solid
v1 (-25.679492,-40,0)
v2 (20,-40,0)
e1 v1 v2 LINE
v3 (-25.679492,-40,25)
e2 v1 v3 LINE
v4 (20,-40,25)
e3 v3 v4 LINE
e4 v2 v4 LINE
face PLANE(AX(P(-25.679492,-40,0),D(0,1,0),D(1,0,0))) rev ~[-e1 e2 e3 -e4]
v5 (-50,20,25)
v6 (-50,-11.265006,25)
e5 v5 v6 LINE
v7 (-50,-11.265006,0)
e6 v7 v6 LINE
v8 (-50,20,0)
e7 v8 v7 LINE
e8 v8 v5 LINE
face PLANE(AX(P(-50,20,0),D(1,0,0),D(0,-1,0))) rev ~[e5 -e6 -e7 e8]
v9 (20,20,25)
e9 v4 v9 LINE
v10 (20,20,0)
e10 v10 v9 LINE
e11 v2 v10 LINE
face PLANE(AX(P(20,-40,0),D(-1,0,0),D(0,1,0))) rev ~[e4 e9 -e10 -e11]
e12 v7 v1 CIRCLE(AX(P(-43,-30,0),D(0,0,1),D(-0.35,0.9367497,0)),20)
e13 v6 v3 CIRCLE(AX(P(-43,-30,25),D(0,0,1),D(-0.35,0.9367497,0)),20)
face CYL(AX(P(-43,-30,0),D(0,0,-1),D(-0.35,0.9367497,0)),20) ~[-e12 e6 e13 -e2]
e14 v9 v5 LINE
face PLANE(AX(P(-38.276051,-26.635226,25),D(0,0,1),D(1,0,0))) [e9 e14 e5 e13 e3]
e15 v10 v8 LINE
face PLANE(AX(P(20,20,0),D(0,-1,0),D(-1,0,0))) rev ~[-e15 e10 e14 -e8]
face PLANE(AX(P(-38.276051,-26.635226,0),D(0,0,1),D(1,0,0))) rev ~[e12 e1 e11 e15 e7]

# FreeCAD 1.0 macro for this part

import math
import FreeCAD as App
import Part
import Sketcher

doc = App.newDocument("Part")
body = doc.addObject("PartDesign::Body", "Body")

# Sketch on XY plane
sketch1 = body.newObject("Sketcher::SketchObject", "Sketch")
sketch1.AttachmentSupport = (doc.getObject("XY_Plane"), [""])
sketch1.MapMode = "FlatFace"
sketch1.addGeometry([
    Part.ArcOfCircle(Part.Circle(App.Vector(-43, -30, 0), App.Vector(0, 0, 1), 20), math.radians(110.487315), math.radians(330)),  # 0
    Part.LineSegment(App.Vector(-25.679492, -40, 0), App.Vector(20, -40, 0)),  # 1
    Part.LineSegment(App.Vector(20, -40, 0), App.Vector(20, 20, 0)),  # 2
    Part.LineSegment(App.Vector(20, 20, 0), App.Vector(-50, 20, 0)),  # 3
    Part.LineSegment(App.Vector(-50, 20, 0), App.Vector(-50, -11.265006, 0)),  # 4
], False)
sketch1.addConstraint([
    Sketcher.Constraint("Coincident", 0, 2, 1, 1),
    Sketcher.Constraint("Coincident", 1, 2, 2, 1),
    Sketcher.Constraint("Coincident", 2, 2, 3, 1),
    Sketcher.Constraint("Coincident", 3, 2, 4, 1),
    Sketcher.Constraint("Coincident", 4, 2, 0, 1),
    Sketcher.Constraint("Horizontal", 1),
    Sketcher.Constraint("Vertical", 2),
    Sketcher.Constraint("Horizontal", 3),
    Sketcher.Constraint("Vertical", 4),
    Sketcher.Constraint("Radius", 0, 20.0),
    Sketcher.Constraint("DistanceX", 3, 2, 3, 1, 70.0),
    Sketcher.Constraint("DistanceY", 2, 1, 2, 2, 60.0),
    Sketcher.Constraint("DistanceX", 0, 3, -1, 1, 43.0),
    Sketcher.Constraint("DistanceY", 0, 3, -1, 1, 30.0),
    Sketcher.Constraint("DistanceY", 0, 2, -1, 1, 40.0),
    Sketcher.Constraint("DistanceX", -1, 1, 1, 2, 20.0),
])
pad1 = body.newObject("PartDesign::Pad", "Pad")
pad1.Profile = sketch1
pad1.Length = 25

doc.recompute()
